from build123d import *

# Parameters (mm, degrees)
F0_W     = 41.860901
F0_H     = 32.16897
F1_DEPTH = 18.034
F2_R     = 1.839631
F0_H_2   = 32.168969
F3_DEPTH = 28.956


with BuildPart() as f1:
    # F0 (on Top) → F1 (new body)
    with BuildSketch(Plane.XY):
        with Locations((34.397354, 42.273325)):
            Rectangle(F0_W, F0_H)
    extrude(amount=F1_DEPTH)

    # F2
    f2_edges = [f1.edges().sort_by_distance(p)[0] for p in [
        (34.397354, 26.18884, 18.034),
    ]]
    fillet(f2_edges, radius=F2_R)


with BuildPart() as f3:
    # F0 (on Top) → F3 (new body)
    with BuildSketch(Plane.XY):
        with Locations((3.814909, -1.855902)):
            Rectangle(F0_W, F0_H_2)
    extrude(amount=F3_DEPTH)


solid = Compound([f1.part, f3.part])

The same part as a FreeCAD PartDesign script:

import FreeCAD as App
import Part
import Sketcher
from FreeCAD import Vector
Q = App.Units.Quantity


def edges_at(feature, points):
    """Names of the edges that pass closest to the given points."""
    edges = feature.Shape.Edges
    near = lambda p: min(range(len(edges)), key=lambda i: edges[i].distToShape(Part.Vertex(*p))[0])
    return sorted({f"Edge{near(p) + 1}" for p in points})


def add_polygon(sketch, points):
    """Adds a closed chain of lines whose ends are joined by coincident constraints."""
    first, n = sketch.GeometryCount, len(points)
    for a, b in zip(points, points[1:] + points[:1]):
        sketch.addGeometry(Part.LineSegment(App.Vector(*a, 0), App.Vector(*b, 0)), False)
    for i in range(n):
        sketch.addConstraint(Sketcher.Constraint("Coincident", first + i, 2, first + (i + 1) % n, 1))

doc = App.newDocument("Part")
body = doc.addObject("PartDesign::Body", "Body")

# Sketch on XY plane
sketch1 = doc.addObject("Sketcher::SketchObject", "Sketch")
body.addObject(sketch1)
sketch1.AttachmentSupport = (doc.XY_Plane, [""])
sketch1.MapMode = "FlatFace"
add_polygon(sketch1, [(13, 58), (13, 26), (55, 26), (55, 58)])  # lines 0-3
sketch1.addConstraint([
    Sketcher.Constraint("Vertical", 0),
    Sketcher.Constraint("Horizontal", 1),
    Sketcher.Constraint("Vertical", 2),
    Sketcher.Constraint("Horizontal", 3),
    Sketcher.Constraint("DistanceX", 1, 1, 1, 2, Q("41.860901 mm")),
    Sketcher.Constraint("DistanceY", 0, 2, 0, 1, Q("32.16897 mm")),
    Sketcher.Constraint("DistanceY", -1, 1, 0, 2, Q("26.18884 mm")),
    Sketcher.Constraint("DistanceX", -1, 1, 0, 2, Q("13.466904 mm")),
])
pad1 = doc.addObject("PartDesign::Pad", "Pad")
body.addObject(pad1)
pad1.Profile = sketch1
pad1.Length = Q("0.71 in")
doc.recompute()

fillet = doc.addObject("PartDesign::Fillet", "Fillet")
body.addObject(fillet)
fillet.Base = (pad1, edges_at(pad1, [(34.397, 26.189, 18.034)]))
fillet.Radius = 1.839631
body2 = doc.addObject("PartDesign::Body", "Body001")

# Sketch on XY plane
sketch2 = doc.addObject("Sketcher::SketchObject", "Sketch001")
body2.addObject(sketch2)
sketch2.AttachmentSupport = (doc.getObject("XY_Plane001"), [""])
sketch2.MapMode = "FlatFace"
add_polygon(sketch2, [(-17, 14), (-17, -18), (25, -18), (25, 14)])  # lines 0-3
sketch2.addConstraint([
    Sketcher.Constraint("Vertical", 0),
    Sketcher.Constraint("Horizontal", 1),
    Sketcher.Constraint("Vertical", 2),
    Sketcher.Constraint("Horizontal", 3),
    Sketcher.Constraint("DistanceX", 1, 1, 1, 2, Q("41.860901 mm")),
    Sketcher.Constraint("DistanceY", 0, 2, 0, 1, Q("32.168969 mm")),
    Sketcher.Constraint("DistanceX", 0, 2, -1, 1, Q("17.115541 mm")),
    Sketcher.Constraint("DistanceY", 0, 2, -1, 1, Q("17.940386 mm")),
])
pad2 = doc.addObject("PartDesign::Pad", "Pad001")
body2.addObject(pad2)
pad2.Profile = sketch2
pad2.Length = Q("1.14 in")

doc.recompute()
